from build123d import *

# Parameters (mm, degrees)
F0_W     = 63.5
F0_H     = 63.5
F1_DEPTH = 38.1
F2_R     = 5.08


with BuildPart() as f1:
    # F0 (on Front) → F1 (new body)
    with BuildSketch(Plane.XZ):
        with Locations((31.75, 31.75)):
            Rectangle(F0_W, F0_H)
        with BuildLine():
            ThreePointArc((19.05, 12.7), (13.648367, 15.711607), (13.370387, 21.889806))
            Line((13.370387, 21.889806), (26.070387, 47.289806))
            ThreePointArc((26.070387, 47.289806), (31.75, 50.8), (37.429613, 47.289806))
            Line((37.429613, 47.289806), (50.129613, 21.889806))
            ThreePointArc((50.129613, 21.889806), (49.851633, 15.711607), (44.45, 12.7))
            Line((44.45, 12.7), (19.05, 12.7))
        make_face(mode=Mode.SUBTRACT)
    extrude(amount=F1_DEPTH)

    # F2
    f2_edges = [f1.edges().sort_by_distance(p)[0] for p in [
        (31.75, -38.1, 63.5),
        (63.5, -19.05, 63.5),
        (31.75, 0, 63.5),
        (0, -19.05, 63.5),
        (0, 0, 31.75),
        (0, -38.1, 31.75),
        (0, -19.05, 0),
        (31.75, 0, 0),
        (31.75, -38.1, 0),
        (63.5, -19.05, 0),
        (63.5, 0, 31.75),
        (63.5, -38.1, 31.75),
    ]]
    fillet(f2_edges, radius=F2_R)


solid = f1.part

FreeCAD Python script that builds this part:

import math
import FreeCAD as App
import Part
import Sketcher

V = App.Vector
Q = App.Units.Quantity


def edges_at(feature, points):
    """Names of the edges that pass closest to the given points."""
    edges = feature.Shape.Edges
    near = lambda p: min(range(len(edges)), key=lambda i: edges[i].distToShape(Part.Vertex(*p))[0])
    return sorted({f"Edge{near(p) + 1}" for p in points})

doc = App.newDocument("Part")
body = doc.addObject("PartDesign::Body", "Body")

# Sketch on XZ plane
sketch1 = body.newObject("Sketcher::SketchObject", "Sketch")
sketch1.AttachmentSupport = (doc.getObject("XZ_Plane"), [""])
sketch1.MapMode = "FlatFace"
sketch1.addGeometry([
    Part.LineSegment(V(0, 64, 0), V(0, 0, 0)),  # 0
    Part.LineSegment(V(0, 0, 0), V(64, 0, 0)),  # 1
    Part.LineSegment(V(64, 0, 0), V(64, 64, 0)),  # 2
    Part.LineSegment(V(64, 64, 0), V(0, 64, 0)),  # 3
    Part.LineSegment(V(44, 13, 0), V(19, 13, 0)),  # 4
    Part.ArcOfCircle(Part.Circle(V(19, 19, 0), V(0, 0, 1), 6), math.radians(153), math.radians(270)),  # 5
    Part.LineSegment(V(13, 22, 0), V(26, 47, 0)),  # 6
    Part.ArcOfCircle(Part.Circle(V(32, 44, 0), V(0, 0, 1), 6), math.radians(27), math.radians(153)),  # 7
    Part.LineSegment(V(37, 47, 0), V(50, 22, 0)),  # 8
    Part.ArcOfCircle(Part.Circle(V(44, 19, 0), V(0, 0, 1), 6), math.radians(-90), math.radians(27)),  # 9
], False)
sketch1.addConstraint([
    Sketcher.Constraint("Coincident", 0, 2, 1, 1),
    Sketcher.Constraint("Coincident", 1, 2, 2, 1),
    Sketcher.Constraint("Coincident", 2, 2, 3, 1),
    Sketcher.Constraint("Coincident", 3, 2, 0, 1),
    Sketcher.Constraint("Tangent", 4, 2, 5, 2),
    Sketcher.Constraint("Tangent", 5, 1, 6, 1),
    Sketcher.Constraint("Tangent", 6, 2, 7, 2),
    Sketcher.Constraint("Tangent", 7, 1, 8, 1),
    Sketcher.Constraint("Tangent", 8, 2, 9, 2),
    Sketcher.Constraint("Tangent", 9, 1, 4, 1),
    Sketcher.Constraint("Vertical", 0),
    Sketcher.Constraint("Horizontal", 1),
    Sketcher.Constraint("Vertical", 2),
    Sketcher.Constraint("Horizontal", 3),
    Sketcher.Constraint("Horizontal", 4),
    Sketcher.Constraint("Coincident", 0, 2, -1, 1),
    Sketcher.Constraint("Equal", 5, 7),
    Sketcher.Constraint("Equal", 7, 9),
    Sketcher.Constraint("Horizontal", 6, 2, 7, 1),
    Sketcher.Constraint("Equal", 3, 0),
    Sketcher.Constraint("DistanceX", 4, 2, 4, 1, Q("1 in")),
    Sketcher.Constraint("Radius", 5, Q("0.25 in")),
    Sketcher.Constraint("DistanceX", 1, 1, 1, 2, Q("2.5 in")),
    Sketcher.Constraint("DistanceY", 5, 3, 7, 3, Q("1 in")),
    Sketcher.Constraint("DistanceY", -1, 1, 4, 2, Q("0.5 in")),
    Sketcher.Constraint("DistanceX", -1, 1, 5, 3, Q("0.75 in")),
])
pad1 = body.newObject("PartDesign::Pad", "Pad")
pad1.Profile = sketch1
pad1.Length = Q("1.5 in")
doc.recompute()

fillet = body.newObject("PartDesign::Fillet", "Fillet")
fillet.Base = (pad1, edges_at(pad1, [
    (31.75, -38.1, 63.5),
    (63.5, -19.05, 63.5),
    (31.75, 0, 63.5),
    (0, -19.05, 63.5),
    (0, 0, 31.75),
    (0, -38.1, 31.75),
    (0, -19.05, 0),
    (31.75, 0, 0),
    (31.75, -38.1, 0),
    (63.5, -19.05, 0),
    (63.5, 0, 31.75),
    (63.5, -38.1, 31.75),
]))
fillet.Radius = Q("0.2 in")

doc.recompute()
